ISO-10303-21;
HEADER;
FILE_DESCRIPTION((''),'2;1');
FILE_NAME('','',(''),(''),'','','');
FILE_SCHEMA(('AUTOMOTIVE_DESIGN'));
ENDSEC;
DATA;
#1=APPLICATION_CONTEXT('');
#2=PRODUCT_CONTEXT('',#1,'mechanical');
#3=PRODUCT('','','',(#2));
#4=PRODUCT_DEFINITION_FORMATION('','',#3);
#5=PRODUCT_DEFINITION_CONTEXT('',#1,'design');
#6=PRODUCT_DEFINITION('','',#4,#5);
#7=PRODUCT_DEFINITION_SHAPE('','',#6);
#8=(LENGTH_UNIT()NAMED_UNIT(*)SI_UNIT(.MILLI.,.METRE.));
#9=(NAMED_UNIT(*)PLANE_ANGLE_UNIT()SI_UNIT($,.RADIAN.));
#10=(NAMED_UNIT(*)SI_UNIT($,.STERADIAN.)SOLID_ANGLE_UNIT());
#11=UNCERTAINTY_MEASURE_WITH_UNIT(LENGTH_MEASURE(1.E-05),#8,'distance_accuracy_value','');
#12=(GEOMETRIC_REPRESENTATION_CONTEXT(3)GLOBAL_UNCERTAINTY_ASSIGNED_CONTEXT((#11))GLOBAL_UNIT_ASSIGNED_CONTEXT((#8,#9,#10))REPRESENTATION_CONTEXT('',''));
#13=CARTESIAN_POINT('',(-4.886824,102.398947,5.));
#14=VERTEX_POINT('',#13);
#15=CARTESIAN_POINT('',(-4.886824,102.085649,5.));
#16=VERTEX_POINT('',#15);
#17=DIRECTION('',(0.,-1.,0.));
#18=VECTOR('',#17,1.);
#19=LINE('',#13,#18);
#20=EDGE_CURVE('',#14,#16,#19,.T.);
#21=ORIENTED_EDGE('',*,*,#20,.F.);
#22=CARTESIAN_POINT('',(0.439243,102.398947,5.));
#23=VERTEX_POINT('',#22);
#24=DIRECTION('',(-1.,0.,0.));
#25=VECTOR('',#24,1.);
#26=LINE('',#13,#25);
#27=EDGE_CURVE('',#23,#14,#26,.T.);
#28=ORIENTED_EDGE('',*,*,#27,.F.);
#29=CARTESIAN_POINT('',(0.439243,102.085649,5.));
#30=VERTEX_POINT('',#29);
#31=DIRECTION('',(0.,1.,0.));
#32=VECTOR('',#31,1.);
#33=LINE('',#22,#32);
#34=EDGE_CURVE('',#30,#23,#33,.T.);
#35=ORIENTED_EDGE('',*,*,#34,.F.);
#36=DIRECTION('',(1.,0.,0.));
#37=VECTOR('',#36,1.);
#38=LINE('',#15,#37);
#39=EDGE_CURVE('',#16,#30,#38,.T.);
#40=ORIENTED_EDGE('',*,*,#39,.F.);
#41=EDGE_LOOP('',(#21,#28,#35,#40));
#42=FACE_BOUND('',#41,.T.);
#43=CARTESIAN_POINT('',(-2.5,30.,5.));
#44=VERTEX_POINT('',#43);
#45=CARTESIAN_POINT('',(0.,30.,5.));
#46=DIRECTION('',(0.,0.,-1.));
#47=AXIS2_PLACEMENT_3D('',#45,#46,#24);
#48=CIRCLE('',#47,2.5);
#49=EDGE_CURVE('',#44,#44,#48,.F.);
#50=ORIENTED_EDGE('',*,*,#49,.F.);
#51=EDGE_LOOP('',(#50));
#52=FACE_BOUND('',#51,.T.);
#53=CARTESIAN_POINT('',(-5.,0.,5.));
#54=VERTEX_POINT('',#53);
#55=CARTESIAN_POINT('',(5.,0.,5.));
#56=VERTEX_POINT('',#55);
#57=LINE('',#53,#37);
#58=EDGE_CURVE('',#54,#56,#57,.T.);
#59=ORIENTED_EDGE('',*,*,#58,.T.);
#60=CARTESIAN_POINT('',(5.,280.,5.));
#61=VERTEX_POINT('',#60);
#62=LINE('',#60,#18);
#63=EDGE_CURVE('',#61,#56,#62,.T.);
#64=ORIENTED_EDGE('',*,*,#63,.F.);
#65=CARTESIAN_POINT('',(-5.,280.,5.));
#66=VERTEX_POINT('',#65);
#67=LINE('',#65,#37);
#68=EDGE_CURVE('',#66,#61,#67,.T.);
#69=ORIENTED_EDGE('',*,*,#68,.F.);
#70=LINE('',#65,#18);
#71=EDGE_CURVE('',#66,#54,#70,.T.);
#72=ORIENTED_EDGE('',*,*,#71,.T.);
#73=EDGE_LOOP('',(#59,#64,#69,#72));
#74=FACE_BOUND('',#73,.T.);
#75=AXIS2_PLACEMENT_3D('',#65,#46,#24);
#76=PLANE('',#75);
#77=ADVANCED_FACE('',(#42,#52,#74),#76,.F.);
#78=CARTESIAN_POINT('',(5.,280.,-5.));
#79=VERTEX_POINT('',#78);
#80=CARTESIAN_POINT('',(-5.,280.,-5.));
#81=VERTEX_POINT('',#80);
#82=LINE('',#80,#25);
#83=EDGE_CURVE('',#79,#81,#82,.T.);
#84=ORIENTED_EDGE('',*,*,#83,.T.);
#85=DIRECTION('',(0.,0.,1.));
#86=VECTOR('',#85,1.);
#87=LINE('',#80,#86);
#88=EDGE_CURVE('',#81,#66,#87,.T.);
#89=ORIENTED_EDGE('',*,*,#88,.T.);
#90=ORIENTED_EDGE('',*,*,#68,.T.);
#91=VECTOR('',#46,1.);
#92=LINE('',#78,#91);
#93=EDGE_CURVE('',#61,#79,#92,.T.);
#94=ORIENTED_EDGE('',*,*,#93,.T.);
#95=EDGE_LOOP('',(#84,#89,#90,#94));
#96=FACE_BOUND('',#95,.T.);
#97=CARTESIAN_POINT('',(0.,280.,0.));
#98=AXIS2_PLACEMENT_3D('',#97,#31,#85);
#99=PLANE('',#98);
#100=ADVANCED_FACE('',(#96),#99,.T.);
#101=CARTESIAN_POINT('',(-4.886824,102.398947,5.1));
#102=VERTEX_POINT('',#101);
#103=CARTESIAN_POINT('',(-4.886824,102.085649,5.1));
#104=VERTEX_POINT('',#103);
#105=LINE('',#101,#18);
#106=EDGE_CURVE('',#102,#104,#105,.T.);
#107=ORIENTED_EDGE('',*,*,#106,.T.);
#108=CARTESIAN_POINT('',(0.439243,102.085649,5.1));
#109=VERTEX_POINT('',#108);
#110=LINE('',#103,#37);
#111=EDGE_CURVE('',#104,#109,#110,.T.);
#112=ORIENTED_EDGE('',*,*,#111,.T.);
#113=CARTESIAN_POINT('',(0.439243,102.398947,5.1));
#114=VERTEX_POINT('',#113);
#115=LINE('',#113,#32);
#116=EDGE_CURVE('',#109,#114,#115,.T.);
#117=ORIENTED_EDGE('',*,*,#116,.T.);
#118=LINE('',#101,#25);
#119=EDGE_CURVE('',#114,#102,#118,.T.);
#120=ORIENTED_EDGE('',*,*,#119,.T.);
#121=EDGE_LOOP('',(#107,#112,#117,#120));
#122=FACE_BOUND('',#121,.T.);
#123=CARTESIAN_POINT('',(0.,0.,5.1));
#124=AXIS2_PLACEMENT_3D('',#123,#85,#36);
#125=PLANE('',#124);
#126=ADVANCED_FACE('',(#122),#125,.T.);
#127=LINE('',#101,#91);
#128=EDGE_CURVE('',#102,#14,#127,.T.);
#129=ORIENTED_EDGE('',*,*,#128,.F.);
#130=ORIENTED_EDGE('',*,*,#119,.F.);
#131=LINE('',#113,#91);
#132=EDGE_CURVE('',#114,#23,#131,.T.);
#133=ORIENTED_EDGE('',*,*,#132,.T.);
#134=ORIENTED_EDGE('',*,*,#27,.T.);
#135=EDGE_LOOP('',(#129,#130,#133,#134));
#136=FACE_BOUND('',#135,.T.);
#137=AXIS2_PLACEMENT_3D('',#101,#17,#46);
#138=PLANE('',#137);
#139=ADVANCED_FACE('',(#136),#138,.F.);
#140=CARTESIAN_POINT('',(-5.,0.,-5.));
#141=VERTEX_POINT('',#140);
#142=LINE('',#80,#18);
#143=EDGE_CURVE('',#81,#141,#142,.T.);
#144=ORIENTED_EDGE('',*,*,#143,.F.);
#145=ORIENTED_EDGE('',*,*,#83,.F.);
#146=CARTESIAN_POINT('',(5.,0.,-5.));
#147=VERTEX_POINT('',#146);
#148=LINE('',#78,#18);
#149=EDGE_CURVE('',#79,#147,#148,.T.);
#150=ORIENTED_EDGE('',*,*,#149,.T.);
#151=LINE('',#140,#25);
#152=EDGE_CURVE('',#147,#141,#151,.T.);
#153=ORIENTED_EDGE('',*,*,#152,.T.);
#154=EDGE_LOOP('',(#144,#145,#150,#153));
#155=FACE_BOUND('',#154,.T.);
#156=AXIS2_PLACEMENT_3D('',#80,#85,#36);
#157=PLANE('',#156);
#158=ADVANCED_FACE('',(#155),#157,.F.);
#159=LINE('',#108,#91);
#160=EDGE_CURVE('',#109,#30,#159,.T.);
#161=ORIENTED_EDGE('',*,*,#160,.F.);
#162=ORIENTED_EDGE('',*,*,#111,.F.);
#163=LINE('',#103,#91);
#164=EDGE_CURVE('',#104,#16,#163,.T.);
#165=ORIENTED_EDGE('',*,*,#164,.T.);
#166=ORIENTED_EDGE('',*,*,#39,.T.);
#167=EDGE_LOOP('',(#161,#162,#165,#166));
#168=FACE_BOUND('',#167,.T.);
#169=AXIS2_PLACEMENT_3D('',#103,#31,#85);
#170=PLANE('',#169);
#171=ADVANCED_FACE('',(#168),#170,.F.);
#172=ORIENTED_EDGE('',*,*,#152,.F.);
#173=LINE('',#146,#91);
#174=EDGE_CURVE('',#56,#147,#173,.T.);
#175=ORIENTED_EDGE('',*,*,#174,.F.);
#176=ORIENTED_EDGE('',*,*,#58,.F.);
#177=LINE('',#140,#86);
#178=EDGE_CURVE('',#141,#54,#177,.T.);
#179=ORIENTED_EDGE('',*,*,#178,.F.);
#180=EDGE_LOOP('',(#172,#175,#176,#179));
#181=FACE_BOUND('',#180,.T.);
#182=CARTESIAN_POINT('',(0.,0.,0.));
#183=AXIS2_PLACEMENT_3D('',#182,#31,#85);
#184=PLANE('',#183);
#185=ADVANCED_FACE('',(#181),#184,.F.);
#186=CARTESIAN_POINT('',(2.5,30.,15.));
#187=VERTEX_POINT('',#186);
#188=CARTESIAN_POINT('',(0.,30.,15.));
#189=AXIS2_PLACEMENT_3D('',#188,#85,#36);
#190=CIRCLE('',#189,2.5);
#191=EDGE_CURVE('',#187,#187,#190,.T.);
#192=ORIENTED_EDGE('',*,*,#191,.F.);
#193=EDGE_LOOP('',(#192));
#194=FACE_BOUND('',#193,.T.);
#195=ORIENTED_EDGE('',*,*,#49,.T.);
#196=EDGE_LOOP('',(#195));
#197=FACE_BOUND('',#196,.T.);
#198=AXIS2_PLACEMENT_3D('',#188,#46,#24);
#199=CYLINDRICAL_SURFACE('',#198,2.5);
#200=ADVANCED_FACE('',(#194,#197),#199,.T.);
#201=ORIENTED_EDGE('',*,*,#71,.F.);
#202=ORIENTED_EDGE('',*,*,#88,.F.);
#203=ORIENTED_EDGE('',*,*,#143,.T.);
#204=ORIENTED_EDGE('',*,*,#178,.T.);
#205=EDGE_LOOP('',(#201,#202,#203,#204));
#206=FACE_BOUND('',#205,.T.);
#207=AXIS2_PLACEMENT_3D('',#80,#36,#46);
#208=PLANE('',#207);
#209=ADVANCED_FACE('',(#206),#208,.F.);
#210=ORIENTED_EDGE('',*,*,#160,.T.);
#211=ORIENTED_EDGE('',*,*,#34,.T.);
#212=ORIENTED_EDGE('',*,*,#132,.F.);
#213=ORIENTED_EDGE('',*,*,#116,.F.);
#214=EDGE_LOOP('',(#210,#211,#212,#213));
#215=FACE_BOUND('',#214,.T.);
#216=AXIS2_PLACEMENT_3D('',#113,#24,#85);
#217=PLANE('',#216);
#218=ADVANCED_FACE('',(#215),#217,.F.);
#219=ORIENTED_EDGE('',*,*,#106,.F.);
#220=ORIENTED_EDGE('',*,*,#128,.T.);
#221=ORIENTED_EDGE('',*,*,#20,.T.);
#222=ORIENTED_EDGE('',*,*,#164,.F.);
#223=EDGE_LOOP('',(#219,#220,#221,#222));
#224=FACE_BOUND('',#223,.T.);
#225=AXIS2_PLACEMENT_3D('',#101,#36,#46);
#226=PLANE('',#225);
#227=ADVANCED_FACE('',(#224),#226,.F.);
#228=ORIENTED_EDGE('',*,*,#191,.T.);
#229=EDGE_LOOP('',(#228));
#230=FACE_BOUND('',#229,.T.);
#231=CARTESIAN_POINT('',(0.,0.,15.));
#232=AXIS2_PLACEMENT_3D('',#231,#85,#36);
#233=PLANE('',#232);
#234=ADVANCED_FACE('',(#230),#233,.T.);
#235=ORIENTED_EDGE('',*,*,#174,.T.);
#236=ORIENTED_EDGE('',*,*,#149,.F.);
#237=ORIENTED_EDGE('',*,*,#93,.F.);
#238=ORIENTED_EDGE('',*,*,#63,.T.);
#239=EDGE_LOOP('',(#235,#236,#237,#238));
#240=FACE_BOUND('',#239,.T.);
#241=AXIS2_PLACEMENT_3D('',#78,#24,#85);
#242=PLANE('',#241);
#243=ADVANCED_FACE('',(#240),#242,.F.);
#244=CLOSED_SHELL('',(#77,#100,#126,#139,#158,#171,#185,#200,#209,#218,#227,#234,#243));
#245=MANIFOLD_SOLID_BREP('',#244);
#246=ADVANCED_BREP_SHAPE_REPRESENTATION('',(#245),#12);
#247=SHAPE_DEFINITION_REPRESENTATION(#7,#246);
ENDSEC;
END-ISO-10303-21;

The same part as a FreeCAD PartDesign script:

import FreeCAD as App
import Part
import Sketcher
from FreeCAD import Vector
Q = App.Units.Quantity

doc = App.newDocument("Part")
body = doc.addObject("PartDesign::Body", "Body")

sketch1 = body.newObject("Sketcher::SketchObject", "Sketch")
sketch1.AttachmentSupport = (doc.getObject("XZ_Plane"), [""])
sketch1.MapMode = "FlatFace"
sketch1.addGeometry([
    Part.LineSegment(Vector(-5, -5, 0), Vector(-5, 5, 0)),
    Part.LineSegment(Vector(-5, 5, 0), Vector(5, 5, 0)),
    Part.LineSegment(Vector(5, 5, 0), Vector(5, -5, 0)),
    Part.LineSegment(Vector(5, -5, 0), Vector(-5, -5, 0)),
], False)
sketch1.addConstraint([
    Sketcher.Constraint("Coincident", 0, 2, 1, 1),
    Sketcher.Constraint("Coincident", 1, 2, 2, 1),
    Sketcher.Constraint("Coincident", 2, 2, 3, 1),
    Sketcher.Constraint("Coincident", 3, 2, 0, 1),
    Sketcher.Constraint("Vertical", 0),
    Sketcher.Constraint("Horizontal", 1),
    Sketcher.Constraint("Vertical", 2),
    Sketcher.Constraint("Horizontal", 3),
    Sketcher.Constraint("Symmetric", 0, 2, 2, 2, -1, 1),
    Sketcher.Constraint("Equal", 3, 0),
    Sketcher.Constraint("DistanceX", 1, 1, 1, 2, Q("10 mm")),
])
pad1 = body.newObject("PartDesign::Pad", "Pad")
pad1.Profile = sketch1
pad1.Length = 280
pad1.Reversed = True

sketch2 = body.newObject("Sketcher::SketchObject", "Sketch001")
sketch2.AttachmentSupport = (doc.getObject("XY_Plane"), [""])
sketch2.MapMode = "FlatFace"
sketch2.AttachmentOffset = App.Placement(Vector(0, 0, 5), App.Rotation())
sketch2.addGeometry(Part.Circle(Vector(0, 30, 0), Vector(0, 0, 1), 2.5), False)
sketch2.addConstraint([
    Sketcher.Constraint("PointOnObject", 0, 3, -2),
    Sketcher.Constraint("Diameter", 0, Q("5 mm")),
    Sketcher.Constraint("DistanceY", -1, 1, 0, 3, Q("30 mm")),
])
pad2 = body.newObject("PartDesign::Pad", "Pad001")
pad2.Profile = sketch2
pad2.Length = 10

sketch3 = body.newObject("Sketcher::SketchObject", "Sketch002")
sketch3.AttachmentSupport = (doc.getObject("XY_Plane"), [""])
sketch3.MapMode = "FlatFace"
sketch3.AttachmentOffset = App.Placement(Vector(0, 0, 5), App.Rotation())
sketch3.addGeometry([
    Part.LineSegment(Vector(-4.89, 102.4, 0), Vector(-4.89, 102.09, 0)),
    Part.LineSegment(Vector(-4.89, 102.09, 0), Vector(0.44, 102.09, 0)),
    Part.LineSegment(Vector(0.44, 102.09, 0), Vector(0.44, 102.4, 0)),
    Part.LineSegment(Vector(0.44, 102.4, 0), Vector(-4.89, 102.4, 0)),
], False)
sketch3.addConstraint([
    Sketcher.Constraint("Coincident", 0, 2, 1, 1),
    Sketcher.Constraint("Coincident", 1, 2, 2, 1),
    Sketcher.Constraint("Coincident", 2, 2, 3, 1),
    Sketcher.Constraint("Coincident", 3, 2, 0, 1),
    Sketcher.Constraint("Vertical", 0),
    Sketcher.Constraint("Horizontal", 1),
    Sketcher.Constraint("Vertical", 2),
    Sketcher.Constraint("Horizontal", 3),
    Sketcher.Constraint("DistanceY", 0, 2, 0, 1, Q("0.313298 mm")),
    Sketcher.Constraint("DistanceX", 1, 1, 1, 2, Q("5.326067 mm")),
    Sketcher.Constraint("DistanceY", -1, 1, 0, 2, Q("102.085649 mm")),
    Sketcher.Constraint("DistanceX", 0, 2, -1, 1, Q("4.886824 mm")),
])
pad3 = body.newObject("PartDesign::Pad", "Pad002")
pad3.Profile = sketch3
pad3.Length = 0.1

doc.recompute()
